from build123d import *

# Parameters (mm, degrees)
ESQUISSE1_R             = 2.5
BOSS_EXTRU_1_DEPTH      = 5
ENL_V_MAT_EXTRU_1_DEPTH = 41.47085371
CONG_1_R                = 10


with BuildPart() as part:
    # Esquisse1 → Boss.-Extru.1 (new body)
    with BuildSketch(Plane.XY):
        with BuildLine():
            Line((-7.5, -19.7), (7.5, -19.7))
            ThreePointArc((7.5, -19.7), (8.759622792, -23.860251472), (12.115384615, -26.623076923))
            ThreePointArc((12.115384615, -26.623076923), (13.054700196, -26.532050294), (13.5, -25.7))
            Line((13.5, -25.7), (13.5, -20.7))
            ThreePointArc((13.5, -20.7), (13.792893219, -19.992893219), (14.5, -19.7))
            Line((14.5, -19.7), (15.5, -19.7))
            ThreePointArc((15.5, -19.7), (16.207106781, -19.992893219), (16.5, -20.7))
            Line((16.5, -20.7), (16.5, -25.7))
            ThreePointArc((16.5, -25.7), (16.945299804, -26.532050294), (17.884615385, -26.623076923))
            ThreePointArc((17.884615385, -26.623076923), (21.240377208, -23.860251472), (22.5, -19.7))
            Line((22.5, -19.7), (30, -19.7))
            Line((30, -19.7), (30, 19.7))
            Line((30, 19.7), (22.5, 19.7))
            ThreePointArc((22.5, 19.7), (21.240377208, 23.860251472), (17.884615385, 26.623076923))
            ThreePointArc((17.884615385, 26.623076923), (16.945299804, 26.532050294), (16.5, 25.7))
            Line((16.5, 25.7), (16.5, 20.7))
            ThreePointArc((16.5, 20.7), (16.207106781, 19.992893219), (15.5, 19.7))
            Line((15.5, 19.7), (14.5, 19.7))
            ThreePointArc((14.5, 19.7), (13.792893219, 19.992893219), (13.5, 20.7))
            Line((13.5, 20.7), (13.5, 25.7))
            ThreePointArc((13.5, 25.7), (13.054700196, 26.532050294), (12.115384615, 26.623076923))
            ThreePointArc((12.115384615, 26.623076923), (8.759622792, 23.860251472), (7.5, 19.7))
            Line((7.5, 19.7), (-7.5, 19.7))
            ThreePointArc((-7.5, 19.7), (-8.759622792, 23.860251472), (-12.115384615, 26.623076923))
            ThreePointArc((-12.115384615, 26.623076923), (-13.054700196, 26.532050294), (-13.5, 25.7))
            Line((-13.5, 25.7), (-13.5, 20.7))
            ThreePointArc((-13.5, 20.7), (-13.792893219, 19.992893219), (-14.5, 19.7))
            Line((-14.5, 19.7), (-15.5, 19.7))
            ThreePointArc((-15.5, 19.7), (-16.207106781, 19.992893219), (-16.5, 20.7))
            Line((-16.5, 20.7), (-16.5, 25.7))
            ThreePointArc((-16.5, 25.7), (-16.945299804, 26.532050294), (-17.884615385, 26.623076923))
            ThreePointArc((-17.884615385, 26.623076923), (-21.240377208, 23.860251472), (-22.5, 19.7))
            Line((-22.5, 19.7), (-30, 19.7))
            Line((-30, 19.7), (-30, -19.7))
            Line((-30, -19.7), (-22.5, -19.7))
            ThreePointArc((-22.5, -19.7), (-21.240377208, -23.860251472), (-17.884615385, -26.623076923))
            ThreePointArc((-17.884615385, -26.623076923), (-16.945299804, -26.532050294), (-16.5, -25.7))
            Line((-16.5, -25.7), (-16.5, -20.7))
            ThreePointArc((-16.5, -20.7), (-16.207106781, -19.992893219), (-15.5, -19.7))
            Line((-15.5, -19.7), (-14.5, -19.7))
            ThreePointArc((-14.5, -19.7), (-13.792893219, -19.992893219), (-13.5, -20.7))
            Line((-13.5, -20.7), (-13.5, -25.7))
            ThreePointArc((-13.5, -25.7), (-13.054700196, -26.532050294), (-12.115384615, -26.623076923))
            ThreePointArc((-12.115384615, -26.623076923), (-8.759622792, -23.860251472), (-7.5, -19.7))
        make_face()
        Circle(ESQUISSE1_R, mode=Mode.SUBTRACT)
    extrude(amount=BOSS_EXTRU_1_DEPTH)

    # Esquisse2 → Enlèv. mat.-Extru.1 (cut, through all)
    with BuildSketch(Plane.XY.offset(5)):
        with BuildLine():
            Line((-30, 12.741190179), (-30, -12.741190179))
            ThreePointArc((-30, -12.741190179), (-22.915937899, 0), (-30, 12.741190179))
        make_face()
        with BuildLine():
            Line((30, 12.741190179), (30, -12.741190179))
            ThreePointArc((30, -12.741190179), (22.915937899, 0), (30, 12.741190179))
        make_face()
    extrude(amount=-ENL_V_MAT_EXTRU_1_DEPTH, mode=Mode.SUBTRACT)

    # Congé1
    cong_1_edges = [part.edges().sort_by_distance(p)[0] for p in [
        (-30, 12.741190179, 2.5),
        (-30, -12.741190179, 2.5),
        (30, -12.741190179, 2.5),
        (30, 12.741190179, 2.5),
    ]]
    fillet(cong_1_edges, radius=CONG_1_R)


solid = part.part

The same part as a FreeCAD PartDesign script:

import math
import FreeCAD as App
import Part
import Sketcher
Q = App.Units.Quantity


def edges_at(feature, points):
    """Names of the edges that pass closest to the given points."""
    edges = feature.Shape.Edges
    near = lambda p: min(range(len(edges)), key=lambda i: edges[i].distToShape(Part.Vertex(*p))[0])
    return sorted({f"Edge{near(p) + 1}" for p in points})

doc = App.newDocument("Part")
params = doc.addObject("Spreadsheet::Sheet", "Params")
for row, (alias, value) in enumerate([
    ("sketch1_diameter", "5 mm"),
    ("sketch1_radius", "1 mm"),
    ("sketch1_radius2", "7.5 mm"),
    ("sketch1_width", "15 mm"),
    ("sketch1_width2", "1 mm"),
    ("pad1_length", "5 mm"),
    ("sketch2_radius", "15 mm"),
    ("fillet_radius", "10 mm"),
], start=1):
    params.set(f"A{row}", alias)
    params.set(f"B{row}", "=" + value)
    params.setAlias(f"B{row}", alias)

body = doc.addObject("PartDesign::Body", "Body")

# Sketch on XY plane
sketch1 = body.newObject("Sketcher::SketchObject", "Sketch")
sketch1.AttachmentSupport = (doc.getObject("XY_Plane"), [""])
sketch1.MapMode = "FlatFace"
sketch1.addGeometry([
    Part.LineSegment(App.Vector(-7.5, -19.7, 0), App.Vector(7.5, -19.7, 0)),  # 0
    Part.ArcOfCircle(Part.Circle(App.Vector(15, -19.7, 0), App.Vector(0, 0, 1), 7.5), math.radians(180), math.radians(247)),  # 1
    Part.ArcOfCircle(Part.Circle(App.Vector(12.5, -25.7, 0), App.Vector(0, 0, 1), 1), math.radians(-113), math.radians(0)),  # 2
    Part.LineSegment(App.Vector(13.5, -25.7, 0), App.Vector(13.5, -20.7, 0)),  # 3
    Part.ArcOfCircle(Part.Circle(App.Vector(14.5, -20.7, 0), App.Vector(0, 0, 1), 1), math.radians(90), math.radians(180)),  # 4
    Part.LineSegment(App.Vector(14.5, -19.7, 0), App.Vector(15.5, -19.7, 0)),  # 5
    Part.ArcOfCircle(Part.Circle(App.Vector(15.5, -20.7, 0), App.Vector(0, 0, 1), 1), math.radians(0), math.radians(90)),  # 6
    Part.LineSegment(App.Vector(16.5, -20.7, 0), App.Vector(16.5, -25.7, 0)),  # 7
    Part.ArcOfCircle(Part.Circle(App.Vector(17.5, -25.7, 0), App.Vector(0, 0, 1), 1), math.radians(-180), math.radians(-67)),  # 8
    Part.ArcOfCircle(Part.Circle(App.Vector(15, -19.7, 0), App.Vector(0, 0, 1), 7.5), math.radians(-67), math.radians(0)),  # 9
    Part.LineSegment(App.Vector(22.5, -19.7, 0), App.Vector(30, -19.7, 0)),  # 10
    Part.LineSegment(App.Vector(30, -19.7, 0), App.Vector(30, 19.7, 0)),  # 11
    Part.LineSegment(App.Vector(30, 19.7, 0), App.Vector(22.5, 19.7, 0)),  # 12
    Part.ArcOfCircle(Part.Circle(App.Vector(15, 19.7, 0), App.Vector(0, 0, 1), 7.5), math.radians(0), math.radians(67)),  # 13
    Part.ArcOfCircle(Part.Circle(App.Vector(17.5, 25.7, 0), App.Vector(0, 0, 1), 1), math.radians(67), math.radians(180)),  # 14
    Part.LineSegment(App.Vector(16.5, 25.7, 0), App.Vector(16.5, 20.7, 0)),  # 15
    Part.ArcOfCircle(Part.Circle(App.Vector(15.5, 20.7, 0), App.Vector(0, 0, 1), 1), math.radians(-90), math.radians(0)),  # 16
    Part.LineSegment(App.Vector(15.5, 19.7, 0), App.Vector(14.5, 19.7, 0)),  # 17
    Part.ArcOfCircle(Part.Circle(App.Vector(14.5, 20.7, 0), App.Vector(0, 0, 1), 1), math.radians(-180), math.radians(-90)),  # 18
    Part.LineSegment(App.Vector(13.5, 20.7, 0), App.Vector(13.5, 25.7, 0)),  # 19
    Part.ArcOfCircle(Part.Circle(App.Vector(12.5, 25.7, 0), App.Vector(0, 0, 1), 1), math.radians(0), math.radians(113)),  # 20
    Part.ArcOfCircle(Part.Circle(App.Vector(15, 19.7, 0), App.Vector(0, 0, 1), 7.5), math.radians(113), math.radians(180)),  # 21
    Part.LineSegment(App.Vector(7.5, 19.7, 0), App.Vector(-7.5, 19.7, 0)),  # 22
    Part.ArcOfCircle(Part.Circle(App.Vector(-15, 19.7, 0), App.Vector(0, 0, 1), 7.5), math.radians(0), math.radians(67)),  # 23
    Part.ArcOfCircle(Part.Circle(App.Vector(-12.5, 25.7, 0), App.Vector(0, 0, 1), 1), math.radians(67), math.radians(180)),  # 24
    Part.LineSegment(App.Vector(-13.5, 25.7, 0), App.Vector(-13.5, 20.7, 0)),  # 25
    Part.ArcOfCircle(Part.Circle(App.Vector(-14.5, 20.7, 0), App.Vector(0, 0, 1), 1), math.radians(-90), math.radians(0)),  # 26
    Part.LineSegment(App.Vector(-14.5, 19.7, 0), App.Vector(-15.5, 19.7, 0)),  # 27
    Part.ArcOfCircle(Part.Circle(App.Vector(-15.5, 20.7, 0), App.Vector(0, 0, 1), 1), math.radians(-180), math.radians(-90)),  # 28
    Part.LineSegment(App.Vector(-16.5, 20.7, 0), App.Vector(-16.5, 25.7, 0)),  # 29
    Part.ArcOfCircle(Part.Circle(App.Vector(-17.5, 25.7, 0), App.Vector(0, 0, 1), 1), math.radians(0), math.radians(113)),  # 30
    Part.ArcOfCircle(Part.Circle(App.Vector(-15, 19.7, 0), App.Vector(0, 0, 1), 7.5), math.radians(113), math.radians(180)),  # 31
    Part.LineSegment(App.Vector(-22.5, 19.7, 0), App.Vector(-30, 19.7, 0)),  # 32
    Part.LineSegment(App.Vector(-30, 19.7, 0), App.Vector(-30, -19.7, 0)),  # 33
    Part.LineSegment(App.Vector(-30, -19.7, 0), App.Vector(-22.5, -19.7, 0)),  # 34
    Part.ArcOfCircle(Part.Circle(App.Vector(-15, -19.7, 0), App.Vector(0, 0, 1), 7.5), math.radians(180), math.radians(247)),  # 35
    Part.ArcOfCircle(Part.Circle(App.Vector(-17.5, -25.7, 0), App.Vector(0, 0, 1), 1), math.radians(-113), math.radians(0)),  # 36
    Part.LineSegment(App.Vector(-16.5, -25.7, 0), App.Vector(-16.5, -20.7, 0)),  # 37
    Part.ArcOfCircle(Part.Circle(App.Vector(-15.5, -20.7, 0), App.Vector(0, 0, 1), 1), math.radians(90), math.radians(180)),  # 38
    Part.LineSegment(App.Vector(-15.5, -19.7, 0), App.Vector(-14.5, -19.7, 0)),  # 39
    Part.ArcOfCircle(Part.Circle(App.Vector(-14.5, -20.7, 0), App.Vector(0, 0, 1), 1), math.radians(0), math.radians(90)),  # 40
    Part.LineSegment(App.Vector(-13.5, -20.7, 0), App.Vector(-13.5, -25.7, 0)),  # 41
    Part.ArcOfCircle(Part.Circle(App.Vector(-12.5, -25.7, 0), App.Vector(0, 0, 1), 1), math.radians(-180), math.radians(-67)),  # 42
    Part.ArcOfCircle(Part.Circle(App.Vector(-15, -19.7, 0), App.Vector(0, 0, 1), 7.5), math.radians(-67), math.radians(0)),  # 43
    Part.Circle(App.Vector(0, 0, 0), App.Vector(0, 0, 1), 2.5),  # 44
], False)
sketch1.addConstraint([
    Sketcher.Constraint("Coincident", 0, 2, 1, 1),
    Sketcher.Constraint("Tangent", 1, 2, 2, 1),
    Sketcher.Constraint("Tangent", 2, 2, 3, 1),
    Sketcher.Constraint("Tangent", 3, 2, 4, 2),
    Sketcher.Constraint("Tangent", 4, 1, 5, 1),
    Sketcher.Constraint("Tangent", 5, 2, 6, 2),
    Sketcher.Constraint("Tangent", 6, 1, 7, 1),
    Sketcher.Constraint("Tangent", 7, 2, 8, 1),
    Sketcher.Constraint("Tangent", 8, 2, 9, 1),
    Sketcher.Constraint("Coincident", 9, 2, 10, 1),
    Sketcher.Constraint("Coincident", 10, 2, 11, 1),
    Sketcher.Constraint("Coincident", 11, 2, 12, 1),
    Sketcher.Constraint("Coincident", 12, 2, 13, 1),
    Sketcher.Constraint("Tangent", 13, 2, 14, 1),
    Sketcher.Constraint("Tangent", 14, 2, 15, 1),
    Sketcher.Constraint("Tangent", 15, 2, 16, 2),
    Sketcher.Constraint("Tangent", 16, 1, 17, 1),
    Sketcher.Constraint("Tangent", 17, 2, 18, 2),
    Sketcher.Constraint("Tangent", 18, 1, 19, 1),
    Sketcher.Constraint("Tangent", 19, 2, 20, 1),
    Sketcher.Constraint("Tangent", 20, 2, 21, 1),
    Sketcher.Constraint("Coincident", 21, 2, 22, 1),
    Sketcher.Constraint("Coincident", 22, 2, 23, 1),
    Sketcher.Constraint("Tangent", 23, 2, 24, 1),
    Sketcher.Constraint("Tangent", 24, 2, 25, 1),
    Sketcher.Constraint("Tangent", 25, 2, 26, 2),
    Sketcher.Constraint("Tangent", 26, 1, 27, 1),
    Sketcher.Constraint("Tangent", 27, 2, 28, 2),
    Sketcher.Constraint("Tangent", 28, 1, 29, 1),
    Sketcher.Constraint("Tangent", 29, 2, 30, 1),
    Sketcher.Constraint("Tangent", 30, 2, 31, 1),
    Sketcher.Constraint("Coincident", 31, 2, 32, 1),
    Sketcher.Constraint("Coincident", 32, 2, 33, 1),
    Sketcher.Constraint("Coincident", 33, 2, 34, 1),
    Sketcher.Constraint("Coincident", 34, 2, 35, 1),
    Sketcher.Constraint("Tangent", 35, 2, 36, 1),
    Sketcher.Constraint("Tangent", 36, 2, 37, 1),
    Sketcher.Constraint("Tangent", 37, 2, 38, 2),
    Sketcher.Constraint("Tangent", 38, 1, 39, 1),
    Sketcher.Constraint("Tangent", 39, 2, 40, 2),
    Sketcher.Constraint("Tangent", 40, 1, 41, 1),
    Sketcher.Constraint("Tangent", 41, 2, 42, 1),
    Sketcher.Constraint("Tangent", 42, 2, 43, 1),
    Sketcher.Constraint("Coincident", 43, 2, 0, 1),
    Sketcher.Constraint("Horizontal", 0),
    Sketcher.Constraint("Vertical", 3),
    Sketcher.Constraint("Horizontal", 5),
    Sketcher.Constraint("Vertical", 7),
    Sketcher.Constraint("Horizontal", 10),
    Sketcher.Constraint("Vertical", 11),
    Sketcher.Constraint("Horizontal", 12),
    Sketcher.Constraint("Vertical", 15),
    Sketcher.Constraint("Horizontal", 17),
    Sketcher.Constraint("Vertical", 19),
    Sketcher.Constraint("Horizontal", 22),
    Sketcher.Constraint("Vertical", 25),
    Sketcher.Constraint("Horizontal", 27),
    Sketcher.Constraint("Vertical", 29),
    Sketcher.Constraint("Horizontal", 32),
    Sketcher.Constraint("Vertical", 33),
    Sketcher.Constraint("Horizontal", 34),
    Sketcher.Constraint("Vertical", 37),
    Sketcher.Constraint("Horizontal", 39),
    Sketcher.Constraint("Vertical", 41),
    Sketcher.Constraint("Coincident", 44, 3, -1, 1),
    Sketcher.Constraint("Coincident", 9, 3, 1, 3),
    Sketcher.Constraint("Coincident", 21, 3, 13, 3),
    Sketcher.Constraint("Coincident", 31, 3, 23, 3),
    Sketcher.Constraint("Coincident", 43, 3, 35, 3),
    Sketcher.Constraint("Equal", 2, 4),
    Sketcher.Constraint("Equal", 4, 6),
    Sketcher.Constraint("Equal", 6, 8),
    Sketcher.Constraint("Equal", 1, 9),
    Sketcher.Constraint("Equal", 9, 13),
    Sketcher.Constraint("Equal", 8, 14),
    Sketcher.Constraint("Equal", 14, 16),
    Sketcher.Constraint("Equal", 16, 18),
    Sketcher.Constraint("Equal", 18, 20),
    Sketcher.Constraint("Equal", 13, 21),
    Sketcher.Constraint("Equal", 21, 23),
    Sketcher.Constraint("Equal", 20, 24),
    Sketcher.Constraint("Equal", 24, 26),
    Sketcher.Constraint("Equal", 26, 28),
    Sketcher.Constraint("Equal", 28, 30),
    Sketcher.Constraint("Equal", 23, 31),
    Sketcher.Constraint("Equal", 31, 35),
    Sketcher.Constraint("Equal", 30, 36),
    Sketcher.Constraint("Equal", 36, 38),
    Sketcher.Constraint("Equal", 38, 40),
    Sketcher.Constraint("Equal", 40, 42),
    Sketcher.Constraint("Equal", 35, 43),
    Sketcher.Constraint("Symmetric", 1, 3, 23, 3, -1, 1),
    Sketcher.Constraint("Symmetric", 4, 3, 26, 3, -1, 1),
    Sketcher.Constraint("Symmetric", 13, 3, 35, 3, -1, 1),
    Sketcher.Constraint("Symmetric", 16, 3, 38, 3, -1, 1),
    Sketcher.Constraint("Symmetric", 10, 2, 32, 2, -1, 1),
    Sketcher.Constraint("Symmetric", 13, 3, 23, 3, -2),
    Sketcher.Constraint("Symmetric", 18, 3, 26, 3, -2),
    Sketcher.Constraint("Horizontal", 2, 3, 8, 3),
    Sketcher.Constraint("Horizontal", 14, 3, 20, 3),
    Sketcher.Constraint("Horizontal", 24, 3, 30, 3),
    Sketcher.Constraint("Horizontal", 36, 3, 42, 3),
    Sketcher.Constraint("Horizontal", 43, 3, 0, 2),
    Sketcher.Constraint("Horizontal", 0, 2, 4, 1),
    Sketcher.Constraint("Horizontal", 5, 2, 9, 2),
    Sketcher.Constraint("Horizontal", 31, 3, 11, 2),
    Sketcher.Constraint("Horizontal", 17, 2, 21, 2),
    Sketcher.Constraint("Horizontal", 10, 2, 33, 2),
    Sketcher.Constraint("Diameter", 44, Q("5 mm")),
    Sketcher.Constraint("Radius", 2, Q("1 mm")),
    Sketcher.Constraint("Radius", 1, Q("7.5 mm")),
    Sketcher.Constraint("DistanceX", 0, 1, 0, 2, Q("15 mm")),
    Sketcher.Constraint("DistanceX", 5, 1, 5, 2, Q("1 mm")),
    Sketcher.Constraint("DistanceX", 10, 1, 10, 2, Q("7.5 mm")),
    Sketcher.Constraint("DistanceY", 11, 1, 11, 2, Q("39.4 mm")),
])
sketch1.setExpression("Constraints[108]", "Params.sketch1_diameter")
sketch1.setExpression("Constraints[109]", "Params.sketch1_radius")
sketch1.setExpression("Constraints[110]", "Params.sketch1_radius2")
sketch1.setExpression("Constraints[111]", "Params.sketch1_width")
sketch1.setExpression("Constraints[112]", "Params.sketch1_width2")
pad1 = body.newObject("PartDesign::Pad", "Pad")
pad1.Profile = sketch1
pad1.setExpression("Length", "Params.pad1_length")

# Sketch on XY plane
sketch2 = body.newObject("Sketcher::SketchObject", "Sketch001")
sketch2.AttachmentSupport = (doc.getObject("XY_Plane"), [""])
sketch2.MapMode = "FlatFace"
sketch2.AttachmentOffset = App.Placement(App.Vector(0, 0, 5), App.Rotation())
sketch2.addGeometry([
    Part.LineSegment(App.Vector(-30, 13, 0), App.Vector(-30, -13, 0)),
    Part.ArcOfCircle(Part.Circle(App.Vector(-38, 0, 0), App.Vector(0, 0, 1), 15), math.radians(-58), math.radians(58)),
    Part.LineSegment(App.Vector(30, -13, 0), App.Vector(30, 13, 0)),
    Part.ArcOfCircle(Part.Circle(App.Vector(38, 0, 0), App.Vector(0, 0, 1), 15), math.radians(122), math.radians(238)),
], False)
sketch2.addConstraint([
    Sketcher.Constraint("Coincident", 0, 1, 1, 2),
    Sketcher.Constraint("Coincident", 1, 1, 0, 2),
    Sketcher.Constraint("Coincident", 2, 1, 3, 2),
    Sketcher.Constraint("Coincident", 3, 1, 2, 2),
    Sketcher.Constraint("Vertical", 0),
    Sketcher.Constraint("Vertical", 2),
    Sketcher.Constraint("Equal", 1, 3),
    Sketcher.Constraint("Symmetric", 1, 3, 3, 3, -1, 1),
    Sketcher.Constraint("Symmetric", 1, 1, 2, 1, -2),
    Sketcher.Constraint("Radius", 1, Q("15 mm")),
    Sketcher.Constraint("DistanceX", 0, 1, -1, 1, Q("30 mm")),
    Sketcher.Constraint("DistanceY", 0, 2, 0, 1, Q("25.48238 mm")),
])
sketch2.setExpression("Constraints[9]", "Params.sketch2_radius")
pocket1 = body.newObject("PartDesign::Pocket", "Pocket")
pocket1.Profile = sketch2
pocket1.Type = "ThroughAll"
doc.recompute()

fillet = body.newObject("PartDesign::Fillet", "Fillet")
fillet.Base = (pocket1, edges_at(pocket1, [
    (-30, 12.741, 2.5),
    (-30, -12.741, 2.5),
    (30, -12.741, 2.5),
    (30, 12.741, 2.5),
]))
fillet.setExpression("Radius", "Params.fillet_radius")

doc.recompute()
